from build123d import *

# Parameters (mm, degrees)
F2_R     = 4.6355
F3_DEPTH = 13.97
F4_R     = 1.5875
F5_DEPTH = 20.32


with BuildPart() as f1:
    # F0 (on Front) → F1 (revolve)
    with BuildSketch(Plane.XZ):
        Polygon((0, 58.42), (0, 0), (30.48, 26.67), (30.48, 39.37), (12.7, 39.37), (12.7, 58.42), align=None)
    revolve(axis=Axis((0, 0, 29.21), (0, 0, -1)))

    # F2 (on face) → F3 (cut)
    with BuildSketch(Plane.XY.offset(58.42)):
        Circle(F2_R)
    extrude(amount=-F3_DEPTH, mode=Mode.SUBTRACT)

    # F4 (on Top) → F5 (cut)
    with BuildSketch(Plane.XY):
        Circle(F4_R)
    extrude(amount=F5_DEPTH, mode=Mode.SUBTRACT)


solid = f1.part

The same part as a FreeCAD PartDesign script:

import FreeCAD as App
import Part
import Sketcher
from FreeCAD import Vector
Q = App.Units.Quantity

doc = App.newDocument("Part")
body = doc.addObject("PartDesign::Body", "Body")

sketch1 = doc.addObject("Sketcher::SketchObject", "Sketch")
body.addObject(sketch1)
sketch1.AttachmentSupport = (doc.XZ_Plane, [""])
sketch1.MapMode = "FlatFace"
sketch1.addGeometry([
    Part.LineSegment(Vector(0, 58, 0), Vector(0, 0, 0)),
    Part.LineSegment(Vector(0, 0, 0), Vector(30, 27, 0)),
    Part.LineSegment(Vector(30, 27, 0), Vector(30, 39, 0)),
    Part.LineSegment(Vector(30, 39, 0), Vector(13, 39, 0)),
    Part.LineSegment(Vector(13, 39, 0), Vector(13, 58, 0)),
    Part.LineSegment(Vector(13, 58, 0), Vector(0, 58, 0)),
], False)
sketch1.addConstraint([
    Sketcher.Constraint("Coincident", 0, 2, 1, 1),
    Sketcher.Constraint("Coincident", 1, 2, 2, 1),
    Sketcher.Constraint("Coincident", 2, 2, 3, 1),
    Sketcher.Constraint("Coincident", 3, 2, 4, 1),
    Sketcher.Constraint("Coincident", 4, 2, 5, 1),
    Sketcher.Constraint("Coincident", 5, 2, 0, 1),
    Sketcher.Constraint("Vertical", 0),
    Sketcher.Constraint("Vertical", 2),
    Sketcher.Constraint("Horizontal", 3),
    Sketcher.Constraint("Vertical", 4),
    Sketcher.Constraint("Horizontal", 5),
    Sketcher.Constraint("Coincident", 0, 2, -1, 1),
    Sketcher.Constraint("Equal", 5, 2),
    Sketcher.Constraint("DistanceX", 3, 2, 3, 1, Q("0.7 in")),
    Sketcher.Constraint("DistanceX", 5, 2, 5, 1, Q("0.5 in")),
    Sketcher.Constraint("DistanceY", 0, 2, 0, 1, Q("2.3 in")),
    Sketcher.Constraint("DistanceY", 4, 1, 4, 2, Q("0.75 in")),
])
revolution = doc.addObject("PartDesign::Revolution", "Revolution")
body.addObject(revolution)
revolution.Profile = sketch1
revolution.ReferenceAxis = (sketch1, ["V_Axis"])
revolution.Angle = 360

sketch2 = doc.addObject("Sketcher::SketchObject", "Sketch001")
body.addObject(sketch2)
sketch2.AttachmentSupport = (doc.XY_Plane, [""])
sketch2.MapMode = "FlatFace"
sketch2.AttachmentOffset = App.Placement(Vector(0, 0, 2.3 * 25.4), App.Rotation())
sketch2.addGeometry(Part.Circle(Vector(0, 0, 0), Vector(0, 0, 1), 4.6), False)
sketch2.addConstraint([
    Sketcher.Constraint("Coincident", 0, 3, -1, 1),
    Sketcher.Constraint("Diameter", 0, Q("0.365 in")),
])
pocket1 = doc.addObject("PartDesign::Pocket", "Pocket")
body.addObject(pocket1)
pocket1.Profile = sketch2
pocket1.Length = Q("0.55 in")

sketch3 = doc.addObject("Sketcher::SketchObject", "Sketch002")
body.addObject(sketch3)
sketch3.AttachmentSupport = (doc.XY_Plane, [""])
sketch3.MapMode = "FlatFace"
sketch3.addGeometry(Part.Circle(Vector(0, 0, 0), Vector(0, 0, 1), 1.6), False)
sketch3.addConstraint([
    Sketcher.Constraint("Coincident", 0, 3, -1, 1),
    Sketcher.Constraint("Diameter", 0, Q("0.125 in")),
])
pocket2 = doc.addObject("PartDesign::Pocket", "Pocket001")
body.addObject(pocket2)
pocket2.Profile = sketch3
pocket2.Length = Q("0.8 in")
pocket2.Reversed = True

doc.recompute()
